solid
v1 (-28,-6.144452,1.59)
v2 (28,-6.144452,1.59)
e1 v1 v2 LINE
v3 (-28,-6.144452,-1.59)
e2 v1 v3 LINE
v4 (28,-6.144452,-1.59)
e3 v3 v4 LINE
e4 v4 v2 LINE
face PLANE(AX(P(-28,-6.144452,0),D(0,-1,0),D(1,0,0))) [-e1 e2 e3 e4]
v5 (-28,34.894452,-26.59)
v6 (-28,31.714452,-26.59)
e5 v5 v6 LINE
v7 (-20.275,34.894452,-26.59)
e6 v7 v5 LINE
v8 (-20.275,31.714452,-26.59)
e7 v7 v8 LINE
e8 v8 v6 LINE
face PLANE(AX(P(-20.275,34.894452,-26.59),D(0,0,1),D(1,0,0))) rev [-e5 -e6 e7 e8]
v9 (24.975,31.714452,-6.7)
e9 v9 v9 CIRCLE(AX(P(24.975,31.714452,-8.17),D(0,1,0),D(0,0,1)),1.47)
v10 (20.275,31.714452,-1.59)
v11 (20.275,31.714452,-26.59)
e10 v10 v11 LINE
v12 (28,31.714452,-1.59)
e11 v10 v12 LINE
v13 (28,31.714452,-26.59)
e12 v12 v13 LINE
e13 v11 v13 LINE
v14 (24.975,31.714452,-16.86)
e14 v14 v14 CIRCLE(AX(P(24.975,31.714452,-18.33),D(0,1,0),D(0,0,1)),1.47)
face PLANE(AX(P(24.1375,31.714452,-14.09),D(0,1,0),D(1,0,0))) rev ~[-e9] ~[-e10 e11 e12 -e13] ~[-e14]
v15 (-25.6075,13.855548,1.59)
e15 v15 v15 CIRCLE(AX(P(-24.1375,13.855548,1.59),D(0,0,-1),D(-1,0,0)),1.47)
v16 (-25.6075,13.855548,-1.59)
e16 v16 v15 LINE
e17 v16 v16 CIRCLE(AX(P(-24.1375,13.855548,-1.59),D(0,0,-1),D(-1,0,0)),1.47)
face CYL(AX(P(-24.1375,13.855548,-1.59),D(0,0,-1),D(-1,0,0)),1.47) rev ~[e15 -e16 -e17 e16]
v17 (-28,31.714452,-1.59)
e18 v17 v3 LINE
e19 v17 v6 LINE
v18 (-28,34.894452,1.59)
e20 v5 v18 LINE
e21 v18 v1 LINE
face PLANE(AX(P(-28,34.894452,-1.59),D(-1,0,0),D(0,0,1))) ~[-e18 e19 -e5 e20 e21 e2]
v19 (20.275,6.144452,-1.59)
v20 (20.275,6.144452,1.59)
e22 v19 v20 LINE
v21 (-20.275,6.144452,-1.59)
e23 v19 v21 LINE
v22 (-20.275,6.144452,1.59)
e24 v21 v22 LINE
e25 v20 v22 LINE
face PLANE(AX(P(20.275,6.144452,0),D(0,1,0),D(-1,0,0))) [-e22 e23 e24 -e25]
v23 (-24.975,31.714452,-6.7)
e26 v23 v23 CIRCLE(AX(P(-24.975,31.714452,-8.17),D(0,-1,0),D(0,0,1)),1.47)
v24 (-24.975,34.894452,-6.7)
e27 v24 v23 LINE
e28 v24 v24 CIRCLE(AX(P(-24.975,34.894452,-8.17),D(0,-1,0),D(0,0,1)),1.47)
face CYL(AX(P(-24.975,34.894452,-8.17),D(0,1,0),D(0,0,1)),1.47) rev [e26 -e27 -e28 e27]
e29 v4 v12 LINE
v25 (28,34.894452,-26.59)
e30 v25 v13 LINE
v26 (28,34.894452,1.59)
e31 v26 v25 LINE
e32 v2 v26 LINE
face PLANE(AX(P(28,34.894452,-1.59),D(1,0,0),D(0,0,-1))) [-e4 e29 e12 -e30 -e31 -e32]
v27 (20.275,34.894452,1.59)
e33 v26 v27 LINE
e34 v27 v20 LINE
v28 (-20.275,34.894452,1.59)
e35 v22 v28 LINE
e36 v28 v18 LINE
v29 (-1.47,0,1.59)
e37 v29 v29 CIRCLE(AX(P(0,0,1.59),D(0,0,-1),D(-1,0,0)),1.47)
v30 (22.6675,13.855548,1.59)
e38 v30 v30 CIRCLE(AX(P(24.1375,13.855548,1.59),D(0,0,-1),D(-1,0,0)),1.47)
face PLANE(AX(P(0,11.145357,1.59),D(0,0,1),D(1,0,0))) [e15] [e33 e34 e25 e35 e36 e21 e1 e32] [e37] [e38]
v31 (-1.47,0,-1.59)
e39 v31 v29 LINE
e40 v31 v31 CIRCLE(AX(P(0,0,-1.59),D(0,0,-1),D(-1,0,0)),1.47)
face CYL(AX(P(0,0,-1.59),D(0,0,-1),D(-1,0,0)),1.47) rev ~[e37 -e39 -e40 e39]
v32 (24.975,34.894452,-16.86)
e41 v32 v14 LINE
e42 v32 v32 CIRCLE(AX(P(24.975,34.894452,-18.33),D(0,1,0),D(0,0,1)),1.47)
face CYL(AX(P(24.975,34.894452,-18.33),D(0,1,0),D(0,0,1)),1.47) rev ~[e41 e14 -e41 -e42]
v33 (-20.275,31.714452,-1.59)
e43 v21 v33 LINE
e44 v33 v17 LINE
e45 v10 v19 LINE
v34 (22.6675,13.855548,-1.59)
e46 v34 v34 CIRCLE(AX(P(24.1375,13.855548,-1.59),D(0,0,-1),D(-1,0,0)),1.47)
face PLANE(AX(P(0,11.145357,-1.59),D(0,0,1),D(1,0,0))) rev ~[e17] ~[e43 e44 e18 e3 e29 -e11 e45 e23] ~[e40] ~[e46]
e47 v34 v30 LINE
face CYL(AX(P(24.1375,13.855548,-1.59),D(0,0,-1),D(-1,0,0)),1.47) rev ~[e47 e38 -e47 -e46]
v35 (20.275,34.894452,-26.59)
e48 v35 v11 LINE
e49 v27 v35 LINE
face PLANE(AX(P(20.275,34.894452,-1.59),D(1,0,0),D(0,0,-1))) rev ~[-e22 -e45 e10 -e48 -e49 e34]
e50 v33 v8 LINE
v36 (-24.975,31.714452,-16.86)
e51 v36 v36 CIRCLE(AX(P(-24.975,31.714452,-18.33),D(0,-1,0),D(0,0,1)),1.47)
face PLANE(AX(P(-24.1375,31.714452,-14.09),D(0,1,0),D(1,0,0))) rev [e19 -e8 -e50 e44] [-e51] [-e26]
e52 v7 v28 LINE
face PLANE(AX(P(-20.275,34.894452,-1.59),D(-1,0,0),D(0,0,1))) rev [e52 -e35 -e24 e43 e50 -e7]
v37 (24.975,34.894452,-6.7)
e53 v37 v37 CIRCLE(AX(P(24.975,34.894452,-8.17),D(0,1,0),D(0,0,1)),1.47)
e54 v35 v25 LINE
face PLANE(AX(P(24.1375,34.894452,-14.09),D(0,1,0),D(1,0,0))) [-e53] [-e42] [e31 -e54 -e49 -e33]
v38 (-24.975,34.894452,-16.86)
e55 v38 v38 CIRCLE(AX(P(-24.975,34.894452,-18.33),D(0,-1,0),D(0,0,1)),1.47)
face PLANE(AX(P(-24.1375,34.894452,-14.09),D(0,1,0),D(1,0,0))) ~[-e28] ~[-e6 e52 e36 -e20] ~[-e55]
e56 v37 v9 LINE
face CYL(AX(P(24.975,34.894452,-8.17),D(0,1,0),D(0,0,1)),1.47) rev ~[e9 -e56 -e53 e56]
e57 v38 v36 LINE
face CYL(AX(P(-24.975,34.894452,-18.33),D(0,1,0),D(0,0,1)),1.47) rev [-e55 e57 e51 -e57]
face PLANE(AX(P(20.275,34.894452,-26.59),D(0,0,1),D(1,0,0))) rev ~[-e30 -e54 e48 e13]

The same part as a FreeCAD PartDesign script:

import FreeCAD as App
import Part
import Sketcher
from FreeCAD import Vector
Q = App.Units.Quantity

doc = App.newDocument("Part")
params = doc.addObject("Spreadsheet::Sheet", "Params")
for row, (alias, value) in enumerate([
    ("sketch1_width", "56 mm"),
    ("sketch1_width2", "40.55 mm"),
    ("sketch1_height", "28.75 mm"),
    ("pad1_length", "3.18 mm"),
    ("sketch2_diameter", "2.94 mm"),
    ("sketch2_height", "25 mm"),
    ("pad2_length", "3.18 mm"),
    ("sketch3_diameter", "2.94 mm"),
], start=1):
    params.set(f"A{row}", alias)
    params.set(f"B{row}", "=" + value)
    params.setAlias(f"B{row}", alias)

body = doc.addObject("PartDesign::Body", "Body")

sketch1 = body.newObject("Sketcher::SketchObject", "Sketch")
sketch1.AttachmentSupport = (doc.getObject("XY_Plane"), [""])
sketch1.MapMode = "FlatFace"
sketch1.addGeometry([
    Part.LineSegment(Vector(-28, -6.144452, 0), Vector(28, -6.144452, 0)),
    Part.LineSegment(Vector(28, -6.144452, 0), Vector(28, 34.894452, 0)),
    Part.LineSegment(Vector(28, 34.894452, 0), Vector(20.275, 34.894452, 0)),
    Part.LineSegment(Vector(20.275, 34.894452, 0), Vector(20.275, 6.144452, 0)),
    Part.LineSegment(Vector(20.275, 6.144452, 0), Vector(-20.275, 6.144452, 0)),
    Part.LineSegment(Vector(-20.275, 6.144452, 0), Vector(-20.275, 34.894452, 0)),
    Part.LineSegment(Vector(-20.275, 34.894452, 0), Vector(-28, 34.894452, 0)),
    Part.LineSegment(Vector(-28, 34.894452, 0), Vector(-28, -6.144452, 0)),
], False)
sketch1.addConstraint([
    Sketcher.Constraint("Coincident", 0, 2, 1, 1),
    Sketcher.Constraint("Coincident", 1, 2, 2, 1),
    Sketcher.Constraint("Coincident", 2, 2, 3, 1),
    Sketcher.Constraint("Coincident", 3, 2, 4, 1),
    Sketcher.Constraint("Coincident", 4, 2, 5, 1),
    Sketcher.Constraint("Coincident", 5, 2, 6, 1),
    Sketcher.Constraint("Coincident", 6, 2, 7, 1),
    Sketcher.Constraint("Coincident", 7, 2, 0, 1),
    Sketcher.Constraint("Horizontal", 0),
    Sketcher.Constraint("Vertical", 1),
    Sketcher.Constraint("Horizontal", 2),
    Sketcher.Constraint("Vertical", 3),
    Sketcher.Constraint("Horizontal", 4),
    Sketcher.Constraint("Vertical", 5),
    Sketcher.Constraint("Horizontal", 6),
    Sketcher.Constraint("Vertical", 7),
    Sketcher.Constraint("Symmetric", 2, 2, 5, 2, -2),
    Sketcher.Constraint("Equal", 2, 6),
    Sketcher.Constraint("DistanceX", 0, 1, 0, 2, Q("56 mm")),
    Sketcher.Constraint("DistanceX", 4, 2, 4, 1, Q("40.55 mm")),
    Sketcher.Constraint("DistanceY", 3, 2, 3, 1, Q("28.75 mm")),
    Sketcher.Constraint("DistanceY", 1, 1, 1, 2, Q("41.038904 mm")),
    Sketcher.Constraint("DistanceY", 0, 2, -1, 1, Q("6.144452 mm")),
])
sketch1.setExpression("Constraints[18]", "Params.sketch1_width")
sketch1.setExpression("Constraints[19]", "Params.sketch1_width2")
sketch1.setExpression("Constraints[20]", "Params.sketch1_height")
pad1 = body.newObject("PartDesign::Pad", "Pad")
pad1.Profile = sketch1
pad1.setExpression("Length", "Params.pad1_length")
pad1.Midplane = True

sketch2 = body.newObject("Sketcher::SketchObject", "Sketch001")
sketch2.AttachmentSupport = (doc.getObject("XZ_Plane"), [""])
sketch2.MapMode = "FlatFace"
sketch2.AttachmentOffset = App.Placement(Vector(0, 0, -34.894452), App.Rotation())
sketch2.addGeometry([
    Part.LineSegment(Vector(20.275, -26.59, 0), Vector(20.275, -1.59, 0)),
    Part.LineSegment(Vector(20.275, -1.59, 0), Vector(28, -1.59, 0)),
    Part.LineSegment(Vector(28, -1.59, 0), Vector(28, -26.59, 0)),
    Part.LineSegment(Vector(28, -26.59, 0), Vector(20.275, -26.59, 0)),
    Part.Circle(Vector(24.975, -8.17, 0), Vector(0, 0, 1), 1.47),
    Part.Circle(Vector(24.975, -18.33, 0), Vector(0, 0, 1), 1.47),
], False)
sketch2.addConstraint([
    Sketcher.Constraint("Coincident", 0, 2, 1, 1),
    Sketcher.Constraint("Coincident", 1, 2, 2, 1),
    Sketcher.Constraint("Coincident", 2, 2, 3, 1),
    Sketcher.Constraint("Coincident", 3, 2, 0, 1),
    Sketcher.Constraint("Vertical", 0),
    Sketcher.Constraint("Horizontal", 1),
    Sketcher.Constraint("Vertical", 2),
    Sketcher.Constraint("Horizontal", 3),
    Sketcher.Constraint("Equal", 4, 5),
    Sketcher.Constraint("Vertical", 4, 3, 5, 3),
    Sketcher.Constraint("Diameter", 4, Q("2.94 mm")),
    Sketcher.Constraint("DistanceY", 0, 1, 0, 2, Q("25 mm")),
    Sketcher.Constraint("DistanceX", -1, 1, 1, 2, Q("28 mm")),
    Sketcher.Constraint("DistanceX", 0, 2, 4, 3, Q("4.7 mm")),
    Sketcher.Constraint("DistanceX", 1, 1, 1, 2, Q("7.725 mm")),
    Sketcher.Constraint("DistanceY", 4, 3, -1, 1, Q("8.17 mm")),
    Sketcher.Constraint("DistanceY", 5, 3, -1, 1, Q("18.33 mm")),
    Sketcher.Constraint("DistanceY", 0, 2, -1, 1, Q("1.59 mm")),
])
sketch2.setExpression("Constraints[10]", "Params.sketch2_diameter")
sketch2.setExpression("Constraints[11]", "Params.sketch2_height")
pad2 = body.newObject("PartDesign::Pad", "Pad001")
pad2.Profile = sketch2
pad2.setExpression("Length", "Params.pad2_length")
doc.recompute()

mirrored = body.newObject("PartDesign::Mirrored", "Mirrored")
mirrored.Originals = [pad2]
mirrored.MirrorPlane = (doc.getObject("YZ_Plane"), [""])
body.Tip = mirrored

sketch3 = body.newObject("Sketcher::SketchObject", "Sketch002")
sketch3.AttachmentSupport = (doc.getObject("XY_Plane"), [""])
sketch3.MapMode = "FlatFace"
sketch3.AttachmentOffset = App.Placement(Vector(0, 0, -1.59), App.Rotation())
sketch3.addGeometry([
    Part.Circle(Vector(0, 0, 0), Vector(0, 0, 1), 1.47),
    Part.Circle(Vector(-24.1375, 13.855548, 0), Vector(0, 0, 1), 1.47),
    Part.Circle(Vector(24.1375, 13.855548, 0), Vector(0, 0, 1), 1.47),
], False)
sketch3.addConstraint([
    Sketcher.Constraint("Coincident", 0, 3, -1, 1),
    Sketcher.Constraint("Equal", 0, 1),
    Sketcher.Constraint("Equal", 1, 2),
    Sketcher.Constraint("Symmetric", 1, 3, 2, 3, -2),
    Sketcher.Constraint("Diameter", 0, Q("2.94 mm")),
    Sketcher.Constraint("DistanceX", 1, 3, 2, 3, Q("48.275 mm")),
    Sketcher.Constraint("DistanceY", -1, 1, 1, 3, Q("13.855548 mm")),
])
sketch3.setExpression("Constraints[4]", "Params.sketch3_diameter")
pocket1 = body.newObject("PartDesign::Pocket", "Pocket")
pocket1.Profile = sketch3
pocket1.Type = "ThroughAll"
pocket1.Reversed = True

doc.recompute()
